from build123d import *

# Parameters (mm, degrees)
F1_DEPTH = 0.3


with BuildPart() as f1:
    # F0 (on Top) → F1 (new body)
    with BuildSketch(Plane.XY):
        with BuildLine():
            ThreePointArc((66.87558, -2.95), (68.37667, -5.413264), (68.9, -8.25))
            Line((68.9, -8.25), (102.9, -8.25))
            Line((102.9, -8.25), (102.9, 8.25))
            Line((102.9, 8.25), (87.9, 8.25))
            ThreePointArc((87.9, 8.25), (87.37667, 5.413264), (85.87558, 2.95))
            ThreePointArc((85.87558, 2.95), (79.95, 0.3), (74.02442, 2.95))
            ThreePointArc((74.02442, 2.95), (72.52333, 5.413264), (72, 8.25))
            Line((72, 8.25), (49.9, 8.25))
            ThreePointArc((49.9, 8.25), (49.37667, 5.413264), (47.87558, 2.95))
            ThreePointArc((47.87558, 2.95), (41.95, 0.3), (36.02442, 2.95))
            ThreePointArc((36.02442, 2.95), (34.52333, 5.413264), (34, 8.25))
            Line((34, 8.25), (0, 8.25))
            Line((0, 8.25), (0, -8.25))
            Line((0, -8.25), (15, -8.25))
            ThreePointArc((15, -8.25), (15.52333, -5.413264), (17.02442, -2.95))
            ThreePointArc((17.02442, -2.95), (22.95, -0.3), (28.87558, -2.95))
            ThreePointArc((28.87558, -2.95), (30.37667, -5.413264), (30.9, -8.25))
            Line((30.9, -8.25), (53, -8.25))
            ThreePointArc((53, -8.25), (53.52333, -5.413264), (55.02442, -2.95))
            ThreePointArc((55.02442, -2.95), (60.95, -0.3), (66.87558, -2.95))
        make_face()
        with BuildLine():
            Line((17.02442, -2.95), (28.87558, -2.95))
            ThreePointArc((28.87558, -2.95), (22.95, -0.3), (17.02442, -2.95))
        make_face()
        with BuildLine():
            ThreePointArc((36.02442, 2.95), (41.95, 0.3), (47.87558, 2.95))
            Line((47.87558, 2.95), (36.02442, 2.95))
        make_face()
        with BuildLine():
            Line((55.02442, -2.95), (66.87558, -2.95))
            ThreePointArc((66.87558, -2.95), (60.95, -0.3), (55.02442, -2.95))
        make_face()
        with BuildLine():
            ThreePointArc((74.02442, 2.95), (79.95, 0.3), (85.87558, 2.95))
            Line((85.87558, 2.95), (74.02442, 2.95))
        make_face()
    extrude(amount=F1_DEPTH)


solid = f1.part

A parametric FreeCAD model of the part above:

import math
import FreeCAD as App
import Part
import Sketcher
from FreeCAD import Vector
Q = App.Units.Quantity

doc = App.newDocument("Part")
body = doc.addObject("PartDesign::Body", "Body")

# Sketch on XY plane
sketch1 = doc.addObject("Sketcher::SketchObject", "Sketch")
body.addObject(sketch1)
sketch1.AttachmentSupport = (doc.XY_Plane, [""])
sketch1.MapMode = "FlatFace"
sketch1.addGeometry([
    Part.ArcOfCircle(Part.Circle(Vector(61, -8, 0), Vector(0, 0, 1), 8), math.radians(0), math.radians(42)),  # 0
    Part.LineSegment(Vector(69, -8, 0), Vector(103, -8, 0)),  # 1
    Part.LineSegment(Vector(103, -8, 0), Vector(103, 8, 0)),  # 2
    Part.LineSegment(Vector(103, 8, 0), Vector(88, 8, 0)),  # 3
    Part.ArcOfCircle(Part.Circle(Vector(80, 8, 0), Vector(0, 0, 1), 8), math.radians(-42), math.radians(0)),  # 4
    Part.LineSegment(Vector(86, 3, 0), Vector(74, 3, 0)),  # 5
    Part.ArcOfCircle(Part.Circle(Vector(80, 8, 0), Vector(0, 0, 1), 8), math.radians(-180), math.radians(-138)),  # 6
    Part.LineSegment(Vector(72, 8, 0), Vector(50, 8, 0)),  # 7
    Part.ArcOfCircle(Part.Circle(Vector(42, 8, 0), Vector(0, 0, 1), 8), math.radians(-42), math.radians(0)),  # 8
    Part.LineSegment(Vector(48, 3, 0), Vector(36, 3, 0)),  # 9
    Part.ArcOfCircle(Part.Circle(Vector(42, 8, 0), Vector(0, 0, 1), 8), math.radians(-180), math.radians(-138)),  # 10
    Part.LineSegment(Vector(34, 8, 0), Vector(0, 8, 0)),  # 11
    Part.LineSegment(Vector(0, 8, 0), Vector(0, -8, 0)),  # 12
    Part.LineSegment(Vector(0, -8, 0), Vector(15, -8, 0)),  # 13
    Part.ArcOfCircle(Part.Circle(Vector(23, -8, 0), Vector(0, 0, 1), 8), math.radians(138), math.radians(180)),  # 14
    Part.LineSegment(Vector(17, -3, 0), Vector(29, -3, 0)),  # 15
    Part.ArcOfCircle(Part.Circle(Vector(23, -8, 0), Vector(0, 0, 1), 8), math.radians(0), math.radians(42)),  # 16
    Part.LineSegment(Vector(31, -8, 0), Vector(53, -8, 0)),  # 17
    Part.ArcOfCircle(Part.Circle(Vector(61, -8, 0), Vector(0, 0, 1), 8), math.radians(138), math.radians(180)),  # 18
    Part.LineSegment(Vector(55, -3, 0), Vector(67, -3, 0)),  # 19
], False)
sketch1.addConstraint([
    Sketcher.Constraint("Coincident", 0, 1, 1, 1),
    Sketcher.Constraint("Coincident", 1, 2, 2, 1),
    Sketcher.Constraint("Coincident", 2, 2, 3, 1),
    Sketcher.Constraint("Coincident", 3, 2, 4, 2),
    Sketcher.Constraint("Coincident", 4, 1, 5, 1),
    Sketcher.Constraint("Coincident", 5, 2, 6, 2),
    Sketcher.Constraint("Coincident", 6, 1, 7, 1),
    Sketcher.Constraint("Coincident", 7, 2, 8, 2),
    Sketcher.Constraint("Coincident", 8, 1, 9, 1),
    Sketcher.Constraint("Coincident", 9, 2, 10, 2),
    Sketcher.Constraint("Coincident", 10, 1, 11, 1),
    Sketcher.Constraint("Coincident", 11, 2, 12, 1),
    Sketcher.Constraint("Coincident", 12, 2, 13, 1),
    Sketcher.Constraint("Coincident", 13, 2, 14, 2),
    Sketcher.Constraint("Coincident", 14, 1, 15, 1),
    Sketcher.Constraint("Coincident", 15, 2, 16, 2),
    Sketcher.Constraint("Coincident", 16, 1, 17, 1),
    Sketcher.Constraint("Coincident", 17, 2, 18, 2),
    Sketcher.Constraint("Coincident", 18, 1, 19, 1),
    Sketcher.Constraint("Coincident", 19, 2, 0, 2),
    Sketcher.Constraint("Horizontal", 1),
    Sketcher.Constraint("Vertical", 2),
    Sketcher.Constraint("Horizontal", 3),
    Sketcher.Constraint("Horizontal", 5),
    Sketcher.Constraint("Horizontal", 7),
    Sketcher.Constraint("Horizontal", 9),
    Sketcher.Constraint("Horizontal", 11),
    Sketcher.Constraint("Vertical", 12),
    Sketcher.Constraint("Horizontal", 13),
    Sketcher.Constraint("Horizontal", 15),
    Sketcher.Constraint("Horizontal", 17),
    Sketcher.Constraint("Horizontal", 19),
    Sketcher.Constraint("Coincident", 6, 3, 4, 3),
    Sketcher.Constraint("Coincident", 10, 3, 8, 3),
    Sketcher.Constraint("Coincident", 16, 3, 14, 3),
    Sketcher.Constraint("Coincident", 18, 3, 0, 3),
    Sketcher.Constraint("Equal", 0, 4),
    Sketcher.Constraint("Equal", 4, 6),
    Sketcher.Constraint("Equal", 6, 8),
    Sketcher.Constraint("Equal", 8, 10),
    Sketcher.Constraint("Equal", 10, 14),
    Sketcher.Constraint("Equal", 14, 16),
    Sketcher.Constraint("Equal", 16, 18),
    Sketcher.Constraint("Symmetric", 11, 2, 12, 2, -1, 1),
    Sketcher.Constraint("Horizontal", 6, 3, 8, 3),
    Sketcher.Constraint("Horizontal", 0, 3, 14, 3),
    Sketcher.Constraint("Horizontal", 18, 3, 0, 1),
    Sketcher.Constraint("Horizontal", 10, 3, 2, 2),
    Sketcher.Constraint("Horizontal", 3, 2, 6, 1),
    Sketcher.Constraint("Horizontal", 5, 2, 8, 1),
    Sketcher.Constraint("Horizontal", 7, 2, 10, 1),
    Sketcher.Constraint("Horizontal", 1, 2, 12, 2),
    Sketcher.Constraint("Horizontal", 13, 2, 16, 1),
    Sketcher.Constraint("Horizontal", 15, 2, 18, 1),
    Sketcher.Constraint("Equal", 1, 11),
    Sketcher.Constraint("Equal", 3, 13),
    Sketcher.Constraint("Equal", 9, 15),
    Sketcher.Constraint("DistanceX", 1, 1, 1, 2, Q("34 mm")),
    Sketcher.Constraint("DistanceX", 3, 2, 3, 1, Q("15 mm")),
    Sketcher.Constraint("Radius", 0, Q("7.950001 mm")),
    Sketcher.Constraint("DistanceX", 7, 2, 7, 1, Q("22.1 mm")),
    Sketcher.Constraint("DistanceY", 2, 1, 2, 2, Q("16.5 mm")),
    Sketcher.Constraint("DistanceY", 4, 1, 3, 2, Q("5.3 mm")),
])
pad1 = doc.addObject("PartDesign::Pad", "Pad")
body.addObject(pad1)
pad1.Profile = sketch1
pad1.Length = 0.3

doc.recompute()
